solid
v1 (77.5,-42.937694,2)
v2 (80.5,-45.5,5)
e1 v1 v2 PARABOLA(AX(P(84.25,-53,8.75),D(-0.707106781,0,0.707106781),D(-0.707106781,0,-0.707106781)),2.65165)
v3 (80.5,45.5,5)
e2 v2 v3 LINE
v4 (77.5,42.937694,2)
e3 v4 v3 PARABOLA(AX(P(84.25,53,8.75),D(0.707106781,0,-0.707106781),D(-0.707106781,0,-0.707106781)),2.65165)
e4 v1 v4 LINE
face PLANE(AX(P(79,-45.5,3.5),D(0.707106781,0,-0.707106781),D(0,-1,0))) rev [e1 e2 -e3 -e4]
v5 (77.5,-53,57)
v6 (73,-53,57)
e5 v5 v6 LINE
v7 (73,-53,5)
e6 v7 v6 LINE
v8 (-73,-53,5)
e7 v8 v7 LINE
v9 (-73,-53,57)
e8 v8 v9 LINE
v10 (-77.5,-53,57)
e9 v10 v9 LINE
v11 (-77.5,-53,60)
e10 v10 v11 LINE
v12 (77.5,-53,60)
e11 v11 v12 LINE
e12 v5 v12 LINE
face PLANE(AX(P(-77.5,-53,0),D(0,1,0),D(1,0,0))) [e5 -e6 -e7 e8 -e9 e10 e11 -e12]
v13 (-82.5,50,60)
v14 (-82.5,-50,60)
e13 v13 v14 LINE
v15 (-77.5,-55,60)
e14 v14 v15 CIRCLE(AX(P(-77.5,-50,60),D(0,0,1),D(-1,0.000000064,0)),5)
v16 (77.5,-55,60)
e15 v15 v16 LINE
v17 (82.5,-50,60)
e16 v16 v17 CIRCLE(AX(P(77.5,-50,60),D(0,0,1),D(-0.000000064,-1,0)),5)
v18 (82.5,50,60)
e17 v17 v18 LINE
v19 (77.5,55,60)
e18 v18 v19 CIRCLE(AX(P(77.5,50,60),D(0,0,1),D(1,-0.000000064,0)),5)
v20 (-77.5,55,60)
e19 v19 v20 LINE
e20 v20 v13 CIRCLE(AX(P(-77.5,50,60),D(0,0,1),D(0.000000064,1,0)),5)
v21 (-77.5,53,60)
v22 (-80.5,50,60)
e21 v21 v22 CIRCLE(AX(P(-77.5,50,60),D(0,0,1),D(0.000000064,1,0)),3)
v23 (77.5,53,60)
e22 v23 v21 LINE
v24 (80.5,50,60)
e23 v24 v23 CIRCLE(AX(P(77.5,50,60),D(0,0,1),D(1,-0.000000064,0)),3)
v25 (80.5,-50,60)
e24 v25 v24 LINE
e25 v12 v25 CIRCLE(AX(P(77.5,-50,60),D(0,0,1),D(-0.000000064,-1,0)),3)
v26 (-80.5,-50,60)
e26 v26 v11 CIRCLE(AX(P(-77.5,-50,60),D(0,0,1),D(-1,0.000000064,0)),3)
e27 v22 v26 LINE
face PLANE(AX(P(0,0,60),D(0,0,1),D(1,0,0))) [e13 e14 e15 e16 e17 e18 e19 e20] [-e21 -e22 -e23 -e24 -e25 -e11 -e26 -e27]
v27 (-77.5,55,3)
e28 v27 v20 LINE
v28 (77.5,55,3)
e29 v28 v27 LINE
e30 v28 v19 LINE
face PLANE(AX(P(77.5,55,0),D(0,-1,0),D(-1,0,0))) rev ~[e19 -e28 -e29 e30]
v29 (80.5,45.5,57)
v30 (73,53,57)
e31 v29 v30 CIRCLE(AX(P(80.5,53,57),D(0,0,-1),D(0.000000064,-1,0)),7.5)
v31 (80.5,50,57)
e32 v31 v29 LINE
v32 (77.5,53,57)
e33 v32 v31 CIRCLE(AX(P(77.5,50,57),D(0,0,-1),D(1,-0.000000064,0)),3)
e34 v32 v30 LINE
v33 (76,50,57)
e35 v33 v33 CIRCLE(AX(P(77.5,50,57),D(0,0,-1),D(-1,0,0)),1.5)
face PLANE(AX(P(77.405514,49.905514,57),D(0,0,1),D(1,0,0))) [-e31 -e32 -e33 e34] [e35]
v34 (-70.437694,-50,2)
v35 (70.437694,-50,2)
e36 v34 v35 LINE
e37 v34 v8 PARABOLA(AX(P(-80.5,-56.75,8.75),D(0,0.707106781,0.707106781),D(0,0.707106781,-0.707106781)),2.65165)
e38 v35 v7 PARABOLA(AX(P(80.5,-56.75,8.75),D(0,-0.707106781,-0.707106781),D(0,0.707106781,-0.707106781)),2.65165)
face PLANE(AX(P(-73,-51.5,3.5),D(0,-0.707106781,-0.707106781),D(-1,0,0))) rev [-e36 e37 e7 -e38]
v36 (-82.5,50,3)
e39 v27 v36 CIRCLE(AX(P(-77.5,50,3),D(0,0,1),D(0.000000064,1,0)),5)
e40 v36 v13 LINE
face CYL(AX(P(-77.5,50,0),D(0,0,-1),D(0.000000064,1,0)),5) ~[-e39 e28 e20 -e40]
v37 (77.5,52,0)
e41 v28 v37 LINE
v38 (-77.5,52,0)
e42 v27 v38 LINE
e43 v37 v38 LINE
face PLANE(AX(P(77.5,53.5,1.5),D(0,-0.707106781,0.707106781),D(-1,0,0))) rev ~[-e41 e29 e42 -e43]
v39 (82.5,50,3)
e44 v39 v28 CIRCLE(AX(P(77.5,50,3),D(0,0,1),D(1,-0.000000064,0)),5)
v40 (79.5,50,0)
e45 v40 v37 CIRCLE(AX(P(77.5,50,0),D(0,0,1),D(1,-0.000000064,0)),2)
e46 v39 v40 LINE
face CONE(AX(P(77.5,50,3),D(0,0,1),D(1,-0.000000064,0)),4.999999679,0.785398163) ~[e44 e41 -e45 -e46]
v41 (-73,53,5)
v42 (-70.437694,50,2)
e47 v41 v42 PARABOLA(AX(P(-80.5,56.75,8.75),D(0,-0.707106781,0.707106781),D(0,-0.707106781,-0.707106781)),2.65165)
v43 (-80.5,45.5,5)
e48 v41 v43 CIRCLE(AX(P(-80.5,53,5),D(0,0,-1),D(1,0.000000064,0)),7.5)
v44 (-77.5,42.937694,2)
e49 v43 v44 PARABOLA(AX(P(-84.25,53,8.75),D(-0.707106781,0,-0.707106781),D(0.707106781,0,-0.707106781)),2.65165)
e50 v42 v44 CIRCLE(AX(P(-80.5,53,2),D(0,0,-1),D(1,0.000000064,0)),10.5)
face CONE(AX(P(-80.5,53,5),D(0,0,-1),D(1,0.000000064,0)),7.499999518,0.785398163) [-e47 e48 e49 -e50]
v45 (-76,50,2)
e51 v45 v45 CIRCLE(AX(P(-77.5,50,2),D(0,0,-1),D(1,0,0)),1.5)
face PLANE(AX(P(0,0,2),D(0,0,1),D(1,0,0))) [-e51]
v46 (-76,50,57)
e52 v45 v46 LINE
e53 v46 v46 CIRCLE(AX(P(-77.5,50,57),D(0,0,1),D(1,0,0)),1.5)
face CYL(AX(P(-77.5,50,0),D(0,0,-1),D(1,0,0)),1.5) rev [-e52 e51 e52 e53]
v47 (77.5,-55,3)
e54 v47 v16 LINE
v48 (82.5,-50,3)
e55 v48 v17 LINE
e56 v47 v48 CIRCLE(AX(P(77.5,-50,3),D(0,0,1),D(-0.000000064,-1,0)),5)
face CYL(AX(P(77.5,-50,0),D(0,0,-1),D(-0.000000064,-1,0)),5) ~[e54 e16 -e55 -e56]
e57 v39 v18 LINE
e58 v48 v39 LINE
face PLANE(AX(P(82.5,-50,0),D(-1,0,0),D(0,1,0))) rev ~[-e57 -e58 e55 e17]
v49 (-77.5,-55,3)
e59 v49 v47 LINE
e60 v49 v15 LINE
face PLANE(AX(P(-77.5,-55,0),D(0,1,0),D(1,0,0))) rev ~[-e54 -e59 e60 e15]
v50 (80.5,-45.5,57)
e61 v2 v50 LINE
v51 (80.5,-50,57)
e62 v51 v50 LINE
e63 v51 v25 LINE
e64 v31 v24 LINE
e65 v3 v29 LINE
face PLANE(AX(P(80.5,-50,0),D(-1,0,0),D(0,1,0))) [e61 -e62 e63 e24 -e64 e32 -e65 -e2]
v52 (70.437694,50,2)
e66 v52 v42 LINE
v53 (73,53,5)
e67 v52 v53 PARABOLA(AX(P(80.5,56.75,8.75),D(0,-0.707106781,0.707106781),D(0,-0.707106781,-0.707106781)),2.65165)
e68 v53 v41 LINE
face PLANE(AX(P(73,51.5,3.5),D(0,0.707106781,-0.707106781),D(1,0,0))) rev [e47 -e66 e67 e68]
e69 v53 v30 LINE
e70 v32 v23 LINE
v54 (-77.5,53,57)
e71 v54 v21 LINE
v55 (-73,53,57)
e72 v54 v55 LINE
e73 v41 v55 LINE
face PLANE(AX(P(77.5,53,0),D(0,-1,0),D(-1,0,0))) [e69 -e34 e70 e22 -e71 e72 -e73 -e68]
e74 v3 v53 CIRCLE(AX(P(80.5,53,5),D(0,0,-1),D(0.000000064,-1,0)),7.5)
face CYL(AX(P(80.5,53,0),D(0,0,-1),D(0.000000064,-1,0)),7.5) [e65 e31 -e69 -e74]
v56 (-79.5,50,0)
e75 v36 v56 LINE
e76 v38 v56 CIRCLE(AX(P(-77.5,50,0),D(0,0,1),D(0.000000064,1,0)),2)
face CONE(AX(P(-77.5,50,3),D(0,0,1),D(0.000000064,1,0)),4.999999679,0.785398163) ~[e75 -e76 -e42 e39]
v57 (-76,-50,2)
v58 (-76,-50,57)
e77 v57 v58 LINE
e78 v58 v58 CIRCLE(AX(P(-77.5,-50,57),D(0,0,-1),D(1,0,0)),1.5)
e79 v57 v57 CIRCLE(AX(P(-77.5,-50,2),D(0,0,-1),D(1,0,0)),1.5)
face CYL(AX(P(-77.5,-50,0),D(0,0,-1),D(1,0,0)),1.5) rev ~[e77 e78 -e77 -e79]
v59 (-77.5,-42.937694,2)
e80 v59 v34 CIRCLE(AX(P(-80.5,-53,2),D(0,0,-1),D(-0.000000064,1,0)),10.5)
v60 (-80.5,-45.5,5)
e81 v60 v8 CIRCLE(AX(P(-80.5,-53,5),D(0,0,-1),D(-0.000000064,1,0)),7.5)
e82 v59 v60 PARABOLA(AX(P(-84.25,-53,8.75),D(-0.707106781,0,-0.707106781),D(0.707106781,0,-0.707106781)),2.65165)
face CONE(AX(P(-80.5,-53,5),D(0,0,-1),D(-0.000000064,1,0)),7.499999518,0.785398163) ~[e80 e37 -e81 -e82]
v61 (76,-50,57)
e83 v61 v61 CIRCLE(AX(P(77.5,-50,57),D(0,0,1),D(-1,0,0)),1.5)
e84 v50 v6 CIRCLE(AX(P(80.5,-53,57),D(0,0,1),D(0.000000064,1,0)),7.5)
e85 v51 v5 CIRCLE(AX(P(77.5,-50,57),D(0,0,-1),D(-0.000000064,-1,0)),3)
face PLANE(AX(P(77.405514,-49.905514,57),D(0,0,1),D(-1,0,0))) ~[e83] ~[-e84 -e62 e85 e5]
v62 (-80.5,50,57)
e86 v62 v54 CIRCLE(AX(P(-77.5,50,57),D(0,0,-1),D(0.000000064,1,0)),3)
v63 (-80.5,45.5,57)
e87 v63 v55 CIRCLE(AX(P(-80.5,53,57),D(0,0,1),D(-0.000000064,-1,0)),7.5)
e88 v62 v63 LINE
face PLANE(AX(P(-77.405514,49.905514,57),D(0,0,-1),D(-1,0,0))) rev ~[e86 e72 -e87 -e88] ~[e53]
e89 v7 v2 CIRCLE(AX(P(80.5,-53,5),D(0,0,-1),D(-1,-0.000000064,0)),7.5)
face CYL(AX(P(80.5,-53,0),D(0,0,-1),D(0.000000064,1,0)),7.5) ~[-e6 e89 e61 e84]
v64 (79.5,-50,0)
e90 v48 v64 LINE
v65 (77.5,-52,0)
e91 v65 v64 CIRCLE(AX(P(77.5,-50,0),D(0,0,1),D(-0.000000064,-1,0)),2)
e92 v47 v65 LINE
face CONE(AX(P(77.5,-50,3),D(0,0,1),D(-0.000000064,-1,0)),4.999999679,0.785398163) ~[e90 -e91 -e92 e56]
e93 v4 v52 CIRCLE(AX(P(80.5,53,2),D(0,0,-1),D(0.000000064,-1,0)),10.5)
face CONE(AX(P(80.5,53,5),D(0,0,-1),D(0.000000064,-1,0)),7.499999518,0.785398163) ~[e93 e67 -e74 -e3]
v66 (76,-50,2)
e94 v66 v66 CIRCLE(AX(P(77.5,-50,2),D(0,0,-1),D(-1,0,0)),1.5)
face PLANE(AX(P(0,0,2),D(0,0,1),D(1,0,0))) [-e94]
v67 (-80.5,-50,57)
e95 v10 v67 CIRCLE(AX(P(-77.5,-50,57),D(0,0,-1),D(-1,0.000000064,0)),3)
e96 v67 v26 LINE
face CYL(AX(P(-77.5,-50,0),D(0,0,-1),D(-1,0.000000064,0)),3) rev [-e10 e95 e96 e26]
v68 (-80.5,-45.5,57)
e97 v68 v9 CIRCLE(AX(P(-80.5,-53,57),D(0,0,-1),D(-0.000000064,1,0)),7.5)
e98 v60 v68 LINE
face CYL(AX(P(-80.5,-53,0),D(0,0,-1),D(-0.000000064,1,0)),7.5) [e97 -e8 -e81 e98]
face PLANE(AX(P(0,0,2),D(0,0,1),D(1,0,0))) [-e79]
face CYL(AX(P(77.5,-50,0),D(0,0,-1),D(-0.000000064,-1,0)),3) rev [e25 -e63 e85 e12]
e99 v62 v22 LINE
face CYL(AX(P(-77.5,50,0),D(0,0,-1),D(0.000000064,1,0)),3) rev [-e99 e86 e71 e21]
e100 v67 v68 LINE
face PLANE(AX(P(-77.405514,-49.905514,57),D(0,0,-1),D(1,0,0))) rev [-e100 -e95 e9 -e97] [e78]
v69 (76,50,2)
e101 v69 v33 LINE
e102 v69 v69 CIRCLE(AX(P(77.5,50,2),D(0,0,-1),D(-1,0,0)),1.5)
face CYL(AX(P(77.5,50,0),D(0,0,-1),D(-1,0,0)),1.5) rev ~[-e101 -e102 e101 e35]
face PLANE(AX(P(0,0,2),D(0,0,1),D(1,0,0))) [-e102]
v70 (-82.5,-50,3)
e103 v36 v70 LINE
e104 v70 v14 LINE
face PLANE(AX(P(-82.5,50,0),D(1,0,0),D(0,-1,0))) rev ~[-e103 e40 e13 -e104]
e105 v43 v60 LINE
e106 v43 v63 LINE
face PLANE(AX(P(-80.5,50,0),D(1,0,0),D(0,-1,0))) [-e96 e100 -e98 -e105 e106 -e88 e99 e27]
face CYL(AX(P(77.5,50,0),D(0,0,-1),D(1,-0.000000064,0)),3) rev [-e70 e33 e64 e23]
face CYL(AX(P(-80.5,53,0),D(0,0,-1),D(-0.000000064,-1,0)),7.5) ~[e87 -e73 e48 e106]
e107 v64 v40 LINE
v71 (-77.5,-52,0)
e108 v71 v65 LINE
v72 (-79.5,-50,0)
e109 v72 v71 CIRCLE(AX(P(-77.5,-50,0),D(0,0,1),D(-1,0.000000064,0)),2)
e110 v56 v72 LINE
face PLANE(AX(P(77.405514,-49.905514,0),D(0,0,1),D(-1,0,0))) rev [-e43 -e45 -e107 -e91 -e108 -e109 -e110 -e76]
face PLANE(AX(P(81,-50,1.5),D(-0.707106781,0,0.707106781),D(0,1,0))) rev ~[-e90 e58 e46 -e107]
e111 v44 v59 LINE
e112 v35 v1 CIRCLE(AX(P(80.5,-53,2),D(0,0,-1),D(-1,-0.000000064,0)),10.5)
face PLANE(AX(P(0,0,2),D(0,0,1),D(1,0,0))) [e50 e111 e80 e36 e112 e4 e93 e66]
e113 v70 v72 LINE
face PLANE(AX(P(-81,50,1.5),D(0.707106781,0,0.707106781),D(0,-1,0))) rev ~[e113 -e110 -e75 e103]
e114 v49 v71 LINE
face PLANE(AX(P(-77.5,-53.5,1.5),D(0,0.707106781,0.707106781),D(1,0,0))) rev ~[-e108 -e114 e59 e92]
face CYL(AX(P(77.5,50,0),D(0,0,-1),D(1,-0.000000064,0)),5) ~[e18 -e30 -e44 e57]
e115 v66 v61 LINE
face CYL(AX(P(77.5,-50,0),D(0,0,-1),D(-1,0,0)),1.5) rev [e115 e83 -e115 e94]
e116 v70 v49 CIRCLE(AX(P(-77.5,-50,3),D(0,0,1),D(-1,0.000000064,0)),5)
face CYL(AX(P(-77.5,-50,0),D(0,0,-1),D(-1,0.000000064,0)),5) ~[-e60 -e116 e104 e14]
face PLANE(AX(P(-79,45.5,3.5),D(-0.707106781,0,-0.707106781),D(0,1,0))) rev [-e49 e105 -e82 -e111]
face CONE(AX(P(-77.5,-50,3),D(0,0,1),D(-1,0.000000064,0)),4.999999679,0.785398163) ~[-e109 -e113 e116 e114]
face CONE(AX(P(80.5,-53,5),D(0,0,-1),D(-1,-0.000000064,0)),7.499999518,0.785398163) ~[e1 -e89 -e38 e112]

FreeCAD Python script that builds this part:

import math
import FreeCAD as App
import Part
import Sketcher
from FreeCAD import Vector
Q = App.Units.Quantity


def edges_at(feature, points):
    """Names of the edges that pass closest to the given points."""
    edges = feature.Shape.Edges
    near = lambda p: min(range(len(edges)), key=lambda i: edges[i].distToShape(Part.Vertex(*p))[0])
    return sorted({f"Edge{near(p) + 1}" for p in points})


def faces_at(feature, points):
    """Names of the faces that lie closest to the given points."""
    faces = feature.Shape.Faces
    near = lambda p: min(range(len(faces)), key=lambda i: faces[i].distToShape(Part.Vertex(*p))[0])
    return sorted({f"Face{near(p) + 1}" for p in points})

doc = App.newDocument("Part")
body = doc.addObject("PartDesign::Body", "Body")

# Sketch on XY plane
sketch1 = body.newObject("Sketcher::SketchObject", "Sketch")
sketch1.AttachmentSupport = (doc.getObject("XY_Plane"), [""])
sketch1.MapMode = "FlatFace"
sketch1.addGeometry([
    Part.LineSegment(Vector(-82.5, 50, 0), Vector(-82.5, -50, 0)),  # 0
    Part.ArcOfCircle(Part.Circle(Vector(-77.5, -50, 0), Vector(0, 0, 1), 5), math.radians(180), math.radians(270)),  # 1
    Part.LineSegment(Vector(-77.5, -55, 0), Vector(77.5, -55, 0)),  # 2
    Part.ArcOfCircle(Part.Circle(Vector(77.5, -50, 0), Vector(0, 0, 1), 5), math.radians(-90), math.radians(0)),  # 3
    Part.LineSegment(Vector(82.5, -50, 0), Vector(82.5, 50, 0)),  # 4
    Part.ArcOfCircle(Part.Circle(Vector(77.5, 50, 0), Vector(0, 0, 1), 5), math.radians(0), math.radians(90)),  # 5
    Part.LineSegment(Vector(77.5, 55, 0), Vector(-77.5, 55, 0)),  # 6
    Part.ArcOfCircle(Part.Circle(Vector(-77.5, 50, 0), Vector(0, 0, 1), 5), math.radians(90), math.radians(180)),  # 7
], False)
sketch1.addConstraint([
    Sketcher.Constraint("Tangent", 0, 2, 1, 1),
    Sketcher.Constraint("Tangent", 1, 2, 2, 1),
    Sketcher.Constraint("Tangent", 2, 2, 3, 1),
    Sketcher.Constraint("Tangent", 3, 2, 4, 1),
    Sketcher.Constraint("Tangent", 4, 2, 5, 1),
    Sketcher.Constraint("Tangent", 5, 2, 6, 1),
    Sketcher.Constraint("Tangent", 6, 2, 7, 1),
    Sketcher.Constraint("Tangent", 7, 2, 0, 1),
    Sketcher.Constraint("Vertical", 0),
    Sketcher.Constraint("Horizontal", 2),
    Sketcher.Constraint("Vertical", 4),
    Sketcher.Constraint("Horizontal", 6),
    Sketcher.Constraint("Equal", 1, 3),
    Sketcher.Constraint("Equal", 3, 5),
    Sketcher.Constraint("Equal", 5, 7),
    Sketcher.Constraint("Symmetric", 1, 3, 5, 3, -1, 1),
    Sketcher.Constraint("Radius", 1, Q("5 mm")),
    Sketcher.Constraint("DistanceX", 2, 1, 2, 2, Q("155 mm")),
    Sketcher.Constraint("DistanceY", 0, 2, 0, 1, Q("100 mm")),
])
pad1 = body.newObject("PartDesign::Pad", "Pad")
pad1.Profile = sketch1
pad1.Length = 60
doc.recompute()

thickness = body.newObject("PartDesign::Thickness", "Thickness")
thickness.Base = (pad1, faces_at(pad1, [(0, 0, 60)]))
thickness.Value = 2
thickness.Reversed = True
thickness.Join = "Arc"

# Sketch on XY plane
sketch2 = body.newObject("Sketcher::SketchObject", "Sketch001")
sketch2.AttachmentSupport = (doc.getObject("XY_Plane"), [""])
sketch2.MapMode = "FlatFace"
sketch2.addGeometry([
    Part.LineSegment(Vector(-73, 53, 0), Vector(-80.5, 53, 0)),
    Part.LineSegment(Vector(-80.5, 53, 0), Vector(-80.5, 45.5, 0)),
    Part.ArcOfCircle(Part.Circle(Vector(-80.5, 53, 0), Vector(0, 0, 1), 7.5), math.radians(-90), math.radians(0)),
    Part.Circle(Vector(-77.5, 50, 0), Vector(0, 0, 1), 1.5),
], False)
sketch2.addConstraint([
    Sketcher.Constraint("Coincident", 0, 2, 1, 1),
    Sketcher.Constraint("Coincident", 1, 2, 2, 1),
    Sketcher.Constraint("Coincident", 2, 2, 0, 1),
    Sketcher.Constraint("Horizontal", 0),
    Sketcher.Constraint("Vertical", 1),
    Sketcher.Constraint("Coincident", 0, 2, 2, 3),
    Sketcher.Constraint("Diameter", 3, Q("3 mm")),
    Sketcher.Constraint("Radius", 2, Q("7.5 mm")),
    Sketcher.Constraint("DistanceY", -1, 1, 2, 3, Q("53 mm")),
    Sketcher.Constraint("DistanceY", -1, 1, 3, 3, Q("50 mm")),
    Sketcher.Constraint("DistanceX", 2, 2, -1, 1, Q("73 mm")),
    Sketcher.Constraint("DistanceX", 2, 3, 3, 3, Q("3 mm")),
])
pad2 = body.newObject("PartDesign::Pad", "Pad001")
pad2.Profile = sketch2
pad2.Length = 57

# Sketch on XY plane
sketch3 = body.newObject("Sketcher::SketchObject", "Sketch002")
sketch3.AttachmentSupport = (doc.getObject("XY_Plane"), [""])
sketch3.MapMode = "FlatFace"
sketch3.addGeometry([
    Part.LineSegment(Vector(73, 53, 0), Vector(80.5, 53, 0)),
    Part.LineSegment(Vector(80.5, 53, 0), Vector(80.5, 45.5, 0)),
    Part.ArcOfCircle(Part.Circle(Vector(80.5, 53, 0), Vector(0, 0, 1), 7.5), math.radians(180), math.radians(270)),
    Part.Circle(Vector(77.5, 50, 0), Vector(0, 0, 1), 1.5),
], False)
sketch3.addConstraint([
    Sketcher.Constraint("Coincident", 0, 2, 1, 1),
    Sketcher.Constraint("Coincident", 1, 2, 2, 2),
    Sketcher.Constraint("Coincident", 2, 1, 0, 1),
    Sketcher.Constraint("Horizontal", 0),
    Sketcher.Constraint("Vertical", 1),
    Sketcher.Constraint("Coincident", 0, 2, 2, 3),
    Sketcher.Constraint("Diameter", 3, Q("3 mm")),
    Sketcher.Constraint("Radius", 2, Q("7.5 mm")),
    Sketcher.Constraint("DistanceY", -1, 1, 2, 3, Q("53 mm")),
    Sketcher.Constraint("DistanceY", -1, 1, 3, 3, Q("50 mm")),
    Sketcher.Constraint("DistanceX", -1, 1, 2, 1, Q("73 mm")),
    Sketcher.Constraint("DistanceX", 3, 3, 2, 3, Q("3 mm")),
])
pad3 = body.newObject("PartDesign::Pad", "Pad002")
pad3.Profile = sketch3
pad3.Length = 57
doc.recompute()

mirrored = body.newObject("PartDesign::Mirrored", "Mirrored")
mirrored.Originals = [pad2, pad3]
mirrored.MirrorPlane = (doc.getObject("XZ_Plane"), [""])
body.Tip = mirrored
doc.recompute()

chamfer = body.newObject("PartDesign::Chamfer", "Chamfer")
chamfer.Base = (mirrored, edges_at(mirrored, [
    (-75.197, 47.697, 2),
    (75.197, 47.697, 2),
    (75.197, -47.697, 2),
    (-75.197, -47.697, 2),
    (0, 53, 2),
    (-80.5, 0, 2),
    (0, -53, 2),
    (80.5, 0, 2),
]))
chamfer.Size = 3
doc.recompute()

chamfer2 = body.newObject("PartDesign::Chamfer", "Chamfer001")
chamfer2.Base = (chamfer, edges_at(chamfer, [(0, -55, 0)]))
chamfer2.Size = 3

doc.recompute()
